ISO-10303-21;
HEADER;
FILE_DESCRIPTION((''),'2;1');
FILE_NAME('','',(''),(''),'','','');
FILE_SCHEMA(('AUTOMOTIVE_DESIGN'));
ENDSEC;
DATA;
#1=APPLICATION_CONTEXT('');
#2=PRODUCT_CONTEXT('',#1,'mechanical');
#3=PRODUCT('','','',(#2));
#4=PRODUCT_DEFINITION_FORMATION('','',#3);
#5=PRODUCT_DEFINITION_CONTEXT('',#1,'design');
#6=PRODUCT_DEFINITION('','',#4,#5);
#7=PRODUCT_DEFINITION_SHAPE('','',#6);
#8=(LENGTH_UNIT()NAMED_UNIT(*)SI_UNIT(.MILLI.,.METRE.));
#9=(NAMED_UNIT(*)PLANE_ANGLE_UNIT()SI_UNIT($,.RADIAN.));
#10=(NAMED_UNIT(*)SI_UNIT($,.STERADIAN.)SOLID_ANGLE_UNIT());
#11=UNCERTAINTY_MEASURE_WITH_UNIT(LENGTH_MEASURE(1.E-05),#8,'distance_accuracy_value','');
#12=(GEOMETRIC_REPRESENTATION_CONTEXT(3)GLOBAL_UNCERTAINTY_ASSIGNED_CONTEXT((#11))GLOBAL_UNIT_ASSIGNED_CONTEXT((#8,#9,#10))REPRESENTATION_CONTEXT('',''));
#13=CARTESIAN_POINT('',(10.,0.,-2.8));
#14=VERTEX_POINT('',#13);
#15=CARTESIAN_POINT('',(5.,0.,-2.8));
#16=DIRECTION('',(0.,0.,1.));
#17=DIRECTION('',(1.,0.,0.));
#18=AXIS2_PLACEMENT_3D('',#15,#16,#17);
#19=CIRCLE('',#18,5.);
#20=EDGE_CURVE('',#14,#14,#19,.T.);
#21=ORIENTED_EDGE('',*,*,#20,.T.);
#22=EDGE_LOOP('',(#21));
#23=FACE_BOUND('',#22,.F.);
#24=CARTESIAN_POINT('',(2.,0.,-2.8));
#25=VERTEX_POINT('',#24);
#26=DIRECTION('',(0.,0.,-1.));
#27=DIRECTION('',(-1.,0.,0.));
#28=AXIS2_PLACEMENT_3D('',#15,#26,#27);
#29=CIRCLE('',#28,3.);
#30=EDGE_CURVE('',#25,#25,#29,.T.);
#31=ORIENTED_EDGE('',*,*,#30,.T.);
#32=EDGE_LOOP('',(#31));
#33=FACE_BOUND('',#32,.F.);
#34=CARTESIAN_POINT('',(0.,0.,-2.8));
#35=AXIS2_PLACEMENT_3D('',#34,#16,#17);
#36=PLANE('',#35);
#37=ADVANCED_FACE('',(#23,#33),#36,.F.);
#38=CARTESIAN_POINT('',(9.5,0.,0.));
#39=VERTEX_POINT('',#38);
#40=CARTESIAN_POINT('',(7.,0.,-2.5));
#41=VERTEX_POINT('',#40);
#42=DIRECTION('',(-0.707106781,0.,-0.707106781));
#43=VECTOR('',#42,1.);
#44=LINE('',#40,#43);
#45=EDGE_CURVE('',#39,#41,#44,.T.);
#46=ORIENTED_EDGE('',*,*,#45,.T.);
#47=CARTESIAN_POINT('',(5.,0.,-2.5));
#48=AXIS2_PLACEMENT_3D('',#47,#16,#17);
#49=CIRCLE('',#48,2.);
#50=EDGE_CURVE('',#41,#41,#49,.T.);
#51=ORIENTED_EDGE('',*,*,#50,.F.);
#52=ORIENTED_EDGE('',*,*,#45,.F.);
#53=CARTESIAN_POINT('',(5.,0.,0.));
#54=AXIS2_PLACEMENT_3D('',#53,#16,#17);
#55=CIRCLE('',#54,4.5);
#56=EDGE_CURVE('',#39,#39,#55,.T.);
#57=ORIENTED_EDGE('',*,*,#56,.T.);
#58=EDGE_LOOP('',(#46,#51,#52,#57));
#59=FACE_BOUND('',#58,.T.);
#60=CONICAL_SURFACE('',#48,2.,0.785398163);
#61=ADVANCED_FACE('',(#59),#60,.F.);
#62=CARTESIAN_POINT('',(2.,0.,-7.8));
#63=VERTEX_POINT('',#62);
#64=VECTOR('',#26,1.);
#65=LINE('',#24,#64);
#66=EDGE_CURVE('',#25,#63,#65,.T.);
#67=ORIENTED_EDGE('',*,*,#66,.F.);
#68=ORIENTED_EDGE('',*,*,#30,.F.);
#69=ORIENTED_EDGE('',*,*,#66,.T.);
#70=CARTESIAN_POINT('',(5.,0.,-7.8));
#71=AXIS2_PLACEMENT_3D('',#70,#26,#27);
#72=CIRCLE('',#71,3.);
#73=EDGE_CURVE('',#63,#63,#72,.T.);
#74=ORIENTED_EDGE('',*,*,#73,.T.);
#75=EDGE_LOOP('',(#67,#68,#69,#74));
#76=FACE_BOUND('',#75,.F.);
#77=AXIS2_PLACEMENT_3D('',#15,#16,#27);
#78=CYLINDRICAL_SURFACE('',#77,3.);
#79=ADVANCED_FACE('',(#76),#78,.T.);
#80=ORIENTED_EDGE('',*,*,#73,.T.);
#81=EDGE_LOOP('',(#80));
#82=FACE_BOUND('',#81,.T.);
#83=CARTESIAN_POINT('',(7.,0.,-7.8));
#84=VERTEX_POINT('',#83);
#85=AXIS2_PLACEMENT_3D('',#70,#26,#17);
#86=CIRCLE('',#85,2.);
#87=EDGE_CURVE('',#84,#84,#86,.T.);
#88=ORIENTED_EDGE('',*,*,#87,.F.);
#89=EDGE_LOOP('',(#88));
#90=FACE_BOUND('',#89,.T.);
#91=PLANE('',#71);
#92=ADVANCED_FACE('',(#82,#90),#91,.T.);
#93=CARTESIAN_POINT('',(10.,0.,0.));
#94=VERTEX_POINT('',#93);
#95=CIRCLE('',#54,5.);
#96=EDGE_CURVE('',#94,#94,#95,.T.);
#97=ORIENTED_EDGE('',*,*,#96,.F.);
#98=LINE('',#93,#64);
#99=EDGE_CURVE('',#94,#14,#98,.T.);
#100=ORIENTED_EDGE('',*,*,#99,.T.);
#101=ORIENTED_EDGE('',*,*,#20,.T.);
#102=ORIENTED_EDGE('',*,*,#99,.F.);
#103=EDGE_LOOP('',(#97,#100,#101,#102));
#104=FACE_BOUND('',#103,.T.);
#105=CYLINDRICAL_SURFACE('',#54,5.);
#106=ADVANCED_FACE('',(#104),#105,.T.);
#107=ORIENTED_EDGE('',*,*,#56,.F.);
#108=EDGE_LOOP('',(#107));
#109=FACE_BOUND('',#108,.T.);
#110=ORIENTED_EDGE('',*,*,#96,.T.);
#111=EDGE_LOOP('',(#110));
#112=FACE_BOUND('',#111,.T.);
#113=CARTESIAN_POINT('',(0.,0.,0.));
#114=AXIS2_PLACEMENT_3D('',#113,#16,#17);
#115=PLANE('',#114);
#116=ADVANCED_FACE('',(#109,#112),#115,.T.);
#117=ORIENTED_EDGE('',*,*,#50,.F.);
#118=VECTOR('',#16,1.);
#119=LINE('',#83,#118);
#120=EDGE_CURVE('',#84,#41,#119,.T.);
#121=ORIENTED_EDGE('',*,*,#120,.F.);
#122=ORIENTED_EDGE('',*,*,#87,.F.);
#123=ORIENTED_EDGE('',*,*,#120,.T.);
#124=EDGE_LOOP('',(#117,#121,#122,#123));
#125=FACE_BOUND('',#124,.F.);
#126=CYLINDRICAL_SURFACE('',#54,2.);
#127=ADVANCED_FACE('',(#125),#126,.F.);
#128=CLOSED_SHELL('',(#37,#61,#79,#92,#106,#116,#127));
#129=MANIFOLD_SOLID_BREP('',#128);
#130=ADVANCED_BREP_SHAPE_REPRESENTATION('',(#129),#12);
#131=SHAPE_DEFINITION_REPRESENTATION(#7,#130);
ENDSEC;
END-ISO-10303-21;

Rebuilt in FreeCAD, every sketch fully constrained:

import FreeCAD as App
import Part
import Sketcher
from FreeCAD import Vector
Q = App.Units.Quantity


def edges_at(feature, points):
    """Names of the edges that pass closest to the given points."""
    edges = feature.Shape.Edges
    near = lambda p: min(range(len(edges)), key=lambda i: edges[i].distToShape(Part.Vertex(*p))[0])
    return sorted({f"Edge{near(p) + 1}" for p in points})


def add_polygon(sketch, points):
    """Adds a closed chain of lines whose ends are joined by coincident constraints."""
    first, n = sketch.GeometryCount, len(points)
    for a, b in zip(points, points[1:] + points[:1]):
        sketch.addGeometry(Part.LineSegment(App.Vector(*a, 0), App.Vector(*b, 0)), False)
    for i in range(n):
        sketch.addConstraint(Sketcher.Constraint("Coincident", first + i, 2, first + (i + 1) % n, 1))

doc = App.newDocument("Part")
body = doc.addObject("PartDesign::Body", "Body")

sketch1 = body.newObject("Sketcher::SketchObject", "Sketch")
sketch1.AttachmentSupport = (doc.getObject("XY_Plane"), [""])
sketch1.MapMode = "FlatFace"
sketch1.addGeometry(Part.Circle(Vector(5, 0, 0), Vector(0, 0, 1), 5), False)
add_polygon(sketch1, [(3.8, 0.7), (5, 1.4), (6.2, 0.7), (6.2, -0.7), (5, -1.4), (3.8, -0.7)])
sketch1.addConstraint([
    Sketcher.Constraint("Vertical", 3),
    Sketcher.Constraint("Vertical", 6),
    Sketcher.Constraint("Symmetric", 1, 2, 4, 2, -1),
    Sketcher.Constraint("PointOnObject", 0, 3, -1),
    Sketcher.Constraint("Parallel", 1, 4),
    Sketcher.Constraint("Parallel", 2, 5),
    Sketcher.Constraint("Horizontal", 3, 2, 5, 2),
    Sketcher.Constraint("Horizontal", 2, 2, 6, 2),
    Sketcher.Constraint("Vertical", 0, 3, 1, 2),
    Sketcher.Constraint("Diameter", 0, 10.0),
    Sketcher.Constraint("Angle", 1, Q("30.0004 deg")),
    Sketcher.Constraint("DistanceX", -1, 1, 0, 3, 5.0),
    Sketcher.Constraint("DistanceX", 5, 2, 3, 2, 2.5),
    Sketcher.Constraint("DistanceY", 3, 2, 3, 1, 1.4434),
])
pad1 = body.newObject("PartDesign::Pad", "Pad")
pad1.Profile = sketch1
pad1.Length = 2.8
pad1.Reversed = True

sketch2 = body.newObject("Sketcher::SketchObject", "Sketch001")
sketch2.AttachmentSupport = (doc.getObject("XY_Plane"), [""])
sketch2.MapMode = "FlatFace"
sketch2.AttachmentOffset = App.Placement(Vector(0, 0, -2.8), App.Rotation())
sketch2.addGeometry([
    Part.Circle(Vector(5, 0, 0), Vector(0, 0, 1), 3),
    Part.Circle(Vector(5, 0, 0), Vector(0, 0, 1), 2),
], False)
sketch2.addConstraint([
    Sketcher.Constraint("Coincident", 1, 3, 0, 3),
    Sketcher.Constraint("PointOnObject", 0, 3, -1),
    Sketcher.Constraint("Diameter", 0, 6.0),
    Sketcher.Constraint("Diameter", 1, 4.0),
    Sketcher.Constraint("DistanceX", -1, 1, 0, 3, 5.0),
])
pad2 = body.newObject("PartDesign::Pad", "Pad001")
pad2.Profile = sketch2
pad2.Length = 5
pad2.Reversed = True

sketch3 = body.newObject("Sketcher::SketchObject", "Sketch002")
sketch3.AttachmentSupport = (doc.getObject("XY_Plane"), [""])
sketch3.MapMode = "FlatFace"
sketch3.addGeometry(Part.Circle(Vector(5, 0, 0), Vector(0, 0, 1), 2), False)
sketch3.addConstraint([
    Sketcher.Constraint("PointOnObject", 0, 3, -1),
    Sketcher.Constraint("Diameter", 0, 4.0),
    Sketcher.Constraint("DistanceX", -1, 1, 0, 3, 5.0),
])
pocket1 = body.newObject("PartDesign::Pocket", "Pocket")
pocket1.Profile = sketch3
pocket1.Type = "ThroughAll"
doc.recompute()

chamfer = body.newObject("PartDesign::Chamfer", "Chamfer")
chamfer.Base = (pocket1, edges_at(pocket1, [(3, 0, 0)]))
chamfer.Size = 2.5

doc.recompute()
